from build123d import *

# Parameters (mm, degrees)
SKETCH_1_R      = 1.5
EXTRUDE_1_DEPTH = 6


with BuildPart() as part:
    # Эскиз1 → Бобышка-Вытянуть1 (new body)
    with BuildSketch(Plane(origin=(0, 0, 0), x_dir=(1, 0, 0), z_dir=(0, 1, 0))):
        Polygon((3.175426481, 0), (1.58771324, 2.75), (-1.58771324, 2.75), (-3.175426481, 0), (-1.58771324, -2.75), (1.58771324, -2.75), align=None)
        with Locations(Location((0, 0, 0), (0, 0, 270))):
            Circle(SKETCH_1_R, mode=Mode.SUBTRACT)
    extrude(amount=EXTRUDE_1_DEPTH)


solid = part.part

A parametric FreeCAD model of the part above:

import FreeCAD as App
import Part
import Sketcher

V = App.Vector
Q = App.Units.Quantity


def add_polygon(sketch, points):
    """Adds a closed chain of lines whose ends are joined by coincident constraints."""
    first, n = sketch.GeometryCount, len(points)
    for a, b in zip(points, points[1:] + points[:1]):
        sketch.addGeometry(Part.LineSegment(App.Vector(*a, 0), App.Vector(*b, 0)), False)
    for i in range(n):
        sketch.addConstraint(Sketcher.Constraint("Coincident", first + i, 2, first + (i + 1) % n, 1))

doc = App.newDocument("Part")
body = doc.addObject("PartDesign::Body", "Body")

# Sketch on XZ plane
sketch1 = body.newObject("Sketcher::SketchObject", "Sketch")
sketch1.AttachmentSupport = (doc.getObject("XZ_Plane"), [""])
sketch1.MapMode = "FlatFace"
add_polygon(sketch1, [(3.175426, 0), (1.587713, -2.75), (-1.587713, -2.75), (-3.175426, 0), (-1.587713, 2.75), (1.587713, 2.75)])  # lines 0-5
sketch1.addGeometry(Part.Circle(V(0, 0, 0), V(0, 0, 1), 1.5), False)  # 6
sketch1.addConstraint([
    Sketcher.Constraint("Horizontal", 1),
    Sketcher.Constraint("Horizontal", 4),
    Sketcher.Constraint("Coincident", 6, 3, -1, 1),
    Sketcher.Constraint("Symmetric", 0, 2, 3, 2, -1, 1),
    Sketcher.Constraint("Symmetric", 2, 2, 5, 2, -1, 1),
    Sketcher.Constraint("PointOnObject", 2, 2, -1),
    Sketcher.Constraint("Parallel", 2, 5),
    Sketcher.Constraint("Vertical", 1, 2, 3, 2),
    Sketcher.Constraint("Diameter", 6, 3.0),
    Sketcher.Constraint("Angle", 0, Q("-120 deg")),
    Sketcher.Constraint("DistanceY", 1, 2, 3, 2, 5.5),
    Sketcher.Constraint("DistanceX", 1, 2, 1, 1, 3.175426),
])
pad1 = body.newObject("PartDesign::Pad", "Pad")
pad1.Profile = sketch1
pad1.Length = 6
pad1.Reversed = True

doc.recompute()
